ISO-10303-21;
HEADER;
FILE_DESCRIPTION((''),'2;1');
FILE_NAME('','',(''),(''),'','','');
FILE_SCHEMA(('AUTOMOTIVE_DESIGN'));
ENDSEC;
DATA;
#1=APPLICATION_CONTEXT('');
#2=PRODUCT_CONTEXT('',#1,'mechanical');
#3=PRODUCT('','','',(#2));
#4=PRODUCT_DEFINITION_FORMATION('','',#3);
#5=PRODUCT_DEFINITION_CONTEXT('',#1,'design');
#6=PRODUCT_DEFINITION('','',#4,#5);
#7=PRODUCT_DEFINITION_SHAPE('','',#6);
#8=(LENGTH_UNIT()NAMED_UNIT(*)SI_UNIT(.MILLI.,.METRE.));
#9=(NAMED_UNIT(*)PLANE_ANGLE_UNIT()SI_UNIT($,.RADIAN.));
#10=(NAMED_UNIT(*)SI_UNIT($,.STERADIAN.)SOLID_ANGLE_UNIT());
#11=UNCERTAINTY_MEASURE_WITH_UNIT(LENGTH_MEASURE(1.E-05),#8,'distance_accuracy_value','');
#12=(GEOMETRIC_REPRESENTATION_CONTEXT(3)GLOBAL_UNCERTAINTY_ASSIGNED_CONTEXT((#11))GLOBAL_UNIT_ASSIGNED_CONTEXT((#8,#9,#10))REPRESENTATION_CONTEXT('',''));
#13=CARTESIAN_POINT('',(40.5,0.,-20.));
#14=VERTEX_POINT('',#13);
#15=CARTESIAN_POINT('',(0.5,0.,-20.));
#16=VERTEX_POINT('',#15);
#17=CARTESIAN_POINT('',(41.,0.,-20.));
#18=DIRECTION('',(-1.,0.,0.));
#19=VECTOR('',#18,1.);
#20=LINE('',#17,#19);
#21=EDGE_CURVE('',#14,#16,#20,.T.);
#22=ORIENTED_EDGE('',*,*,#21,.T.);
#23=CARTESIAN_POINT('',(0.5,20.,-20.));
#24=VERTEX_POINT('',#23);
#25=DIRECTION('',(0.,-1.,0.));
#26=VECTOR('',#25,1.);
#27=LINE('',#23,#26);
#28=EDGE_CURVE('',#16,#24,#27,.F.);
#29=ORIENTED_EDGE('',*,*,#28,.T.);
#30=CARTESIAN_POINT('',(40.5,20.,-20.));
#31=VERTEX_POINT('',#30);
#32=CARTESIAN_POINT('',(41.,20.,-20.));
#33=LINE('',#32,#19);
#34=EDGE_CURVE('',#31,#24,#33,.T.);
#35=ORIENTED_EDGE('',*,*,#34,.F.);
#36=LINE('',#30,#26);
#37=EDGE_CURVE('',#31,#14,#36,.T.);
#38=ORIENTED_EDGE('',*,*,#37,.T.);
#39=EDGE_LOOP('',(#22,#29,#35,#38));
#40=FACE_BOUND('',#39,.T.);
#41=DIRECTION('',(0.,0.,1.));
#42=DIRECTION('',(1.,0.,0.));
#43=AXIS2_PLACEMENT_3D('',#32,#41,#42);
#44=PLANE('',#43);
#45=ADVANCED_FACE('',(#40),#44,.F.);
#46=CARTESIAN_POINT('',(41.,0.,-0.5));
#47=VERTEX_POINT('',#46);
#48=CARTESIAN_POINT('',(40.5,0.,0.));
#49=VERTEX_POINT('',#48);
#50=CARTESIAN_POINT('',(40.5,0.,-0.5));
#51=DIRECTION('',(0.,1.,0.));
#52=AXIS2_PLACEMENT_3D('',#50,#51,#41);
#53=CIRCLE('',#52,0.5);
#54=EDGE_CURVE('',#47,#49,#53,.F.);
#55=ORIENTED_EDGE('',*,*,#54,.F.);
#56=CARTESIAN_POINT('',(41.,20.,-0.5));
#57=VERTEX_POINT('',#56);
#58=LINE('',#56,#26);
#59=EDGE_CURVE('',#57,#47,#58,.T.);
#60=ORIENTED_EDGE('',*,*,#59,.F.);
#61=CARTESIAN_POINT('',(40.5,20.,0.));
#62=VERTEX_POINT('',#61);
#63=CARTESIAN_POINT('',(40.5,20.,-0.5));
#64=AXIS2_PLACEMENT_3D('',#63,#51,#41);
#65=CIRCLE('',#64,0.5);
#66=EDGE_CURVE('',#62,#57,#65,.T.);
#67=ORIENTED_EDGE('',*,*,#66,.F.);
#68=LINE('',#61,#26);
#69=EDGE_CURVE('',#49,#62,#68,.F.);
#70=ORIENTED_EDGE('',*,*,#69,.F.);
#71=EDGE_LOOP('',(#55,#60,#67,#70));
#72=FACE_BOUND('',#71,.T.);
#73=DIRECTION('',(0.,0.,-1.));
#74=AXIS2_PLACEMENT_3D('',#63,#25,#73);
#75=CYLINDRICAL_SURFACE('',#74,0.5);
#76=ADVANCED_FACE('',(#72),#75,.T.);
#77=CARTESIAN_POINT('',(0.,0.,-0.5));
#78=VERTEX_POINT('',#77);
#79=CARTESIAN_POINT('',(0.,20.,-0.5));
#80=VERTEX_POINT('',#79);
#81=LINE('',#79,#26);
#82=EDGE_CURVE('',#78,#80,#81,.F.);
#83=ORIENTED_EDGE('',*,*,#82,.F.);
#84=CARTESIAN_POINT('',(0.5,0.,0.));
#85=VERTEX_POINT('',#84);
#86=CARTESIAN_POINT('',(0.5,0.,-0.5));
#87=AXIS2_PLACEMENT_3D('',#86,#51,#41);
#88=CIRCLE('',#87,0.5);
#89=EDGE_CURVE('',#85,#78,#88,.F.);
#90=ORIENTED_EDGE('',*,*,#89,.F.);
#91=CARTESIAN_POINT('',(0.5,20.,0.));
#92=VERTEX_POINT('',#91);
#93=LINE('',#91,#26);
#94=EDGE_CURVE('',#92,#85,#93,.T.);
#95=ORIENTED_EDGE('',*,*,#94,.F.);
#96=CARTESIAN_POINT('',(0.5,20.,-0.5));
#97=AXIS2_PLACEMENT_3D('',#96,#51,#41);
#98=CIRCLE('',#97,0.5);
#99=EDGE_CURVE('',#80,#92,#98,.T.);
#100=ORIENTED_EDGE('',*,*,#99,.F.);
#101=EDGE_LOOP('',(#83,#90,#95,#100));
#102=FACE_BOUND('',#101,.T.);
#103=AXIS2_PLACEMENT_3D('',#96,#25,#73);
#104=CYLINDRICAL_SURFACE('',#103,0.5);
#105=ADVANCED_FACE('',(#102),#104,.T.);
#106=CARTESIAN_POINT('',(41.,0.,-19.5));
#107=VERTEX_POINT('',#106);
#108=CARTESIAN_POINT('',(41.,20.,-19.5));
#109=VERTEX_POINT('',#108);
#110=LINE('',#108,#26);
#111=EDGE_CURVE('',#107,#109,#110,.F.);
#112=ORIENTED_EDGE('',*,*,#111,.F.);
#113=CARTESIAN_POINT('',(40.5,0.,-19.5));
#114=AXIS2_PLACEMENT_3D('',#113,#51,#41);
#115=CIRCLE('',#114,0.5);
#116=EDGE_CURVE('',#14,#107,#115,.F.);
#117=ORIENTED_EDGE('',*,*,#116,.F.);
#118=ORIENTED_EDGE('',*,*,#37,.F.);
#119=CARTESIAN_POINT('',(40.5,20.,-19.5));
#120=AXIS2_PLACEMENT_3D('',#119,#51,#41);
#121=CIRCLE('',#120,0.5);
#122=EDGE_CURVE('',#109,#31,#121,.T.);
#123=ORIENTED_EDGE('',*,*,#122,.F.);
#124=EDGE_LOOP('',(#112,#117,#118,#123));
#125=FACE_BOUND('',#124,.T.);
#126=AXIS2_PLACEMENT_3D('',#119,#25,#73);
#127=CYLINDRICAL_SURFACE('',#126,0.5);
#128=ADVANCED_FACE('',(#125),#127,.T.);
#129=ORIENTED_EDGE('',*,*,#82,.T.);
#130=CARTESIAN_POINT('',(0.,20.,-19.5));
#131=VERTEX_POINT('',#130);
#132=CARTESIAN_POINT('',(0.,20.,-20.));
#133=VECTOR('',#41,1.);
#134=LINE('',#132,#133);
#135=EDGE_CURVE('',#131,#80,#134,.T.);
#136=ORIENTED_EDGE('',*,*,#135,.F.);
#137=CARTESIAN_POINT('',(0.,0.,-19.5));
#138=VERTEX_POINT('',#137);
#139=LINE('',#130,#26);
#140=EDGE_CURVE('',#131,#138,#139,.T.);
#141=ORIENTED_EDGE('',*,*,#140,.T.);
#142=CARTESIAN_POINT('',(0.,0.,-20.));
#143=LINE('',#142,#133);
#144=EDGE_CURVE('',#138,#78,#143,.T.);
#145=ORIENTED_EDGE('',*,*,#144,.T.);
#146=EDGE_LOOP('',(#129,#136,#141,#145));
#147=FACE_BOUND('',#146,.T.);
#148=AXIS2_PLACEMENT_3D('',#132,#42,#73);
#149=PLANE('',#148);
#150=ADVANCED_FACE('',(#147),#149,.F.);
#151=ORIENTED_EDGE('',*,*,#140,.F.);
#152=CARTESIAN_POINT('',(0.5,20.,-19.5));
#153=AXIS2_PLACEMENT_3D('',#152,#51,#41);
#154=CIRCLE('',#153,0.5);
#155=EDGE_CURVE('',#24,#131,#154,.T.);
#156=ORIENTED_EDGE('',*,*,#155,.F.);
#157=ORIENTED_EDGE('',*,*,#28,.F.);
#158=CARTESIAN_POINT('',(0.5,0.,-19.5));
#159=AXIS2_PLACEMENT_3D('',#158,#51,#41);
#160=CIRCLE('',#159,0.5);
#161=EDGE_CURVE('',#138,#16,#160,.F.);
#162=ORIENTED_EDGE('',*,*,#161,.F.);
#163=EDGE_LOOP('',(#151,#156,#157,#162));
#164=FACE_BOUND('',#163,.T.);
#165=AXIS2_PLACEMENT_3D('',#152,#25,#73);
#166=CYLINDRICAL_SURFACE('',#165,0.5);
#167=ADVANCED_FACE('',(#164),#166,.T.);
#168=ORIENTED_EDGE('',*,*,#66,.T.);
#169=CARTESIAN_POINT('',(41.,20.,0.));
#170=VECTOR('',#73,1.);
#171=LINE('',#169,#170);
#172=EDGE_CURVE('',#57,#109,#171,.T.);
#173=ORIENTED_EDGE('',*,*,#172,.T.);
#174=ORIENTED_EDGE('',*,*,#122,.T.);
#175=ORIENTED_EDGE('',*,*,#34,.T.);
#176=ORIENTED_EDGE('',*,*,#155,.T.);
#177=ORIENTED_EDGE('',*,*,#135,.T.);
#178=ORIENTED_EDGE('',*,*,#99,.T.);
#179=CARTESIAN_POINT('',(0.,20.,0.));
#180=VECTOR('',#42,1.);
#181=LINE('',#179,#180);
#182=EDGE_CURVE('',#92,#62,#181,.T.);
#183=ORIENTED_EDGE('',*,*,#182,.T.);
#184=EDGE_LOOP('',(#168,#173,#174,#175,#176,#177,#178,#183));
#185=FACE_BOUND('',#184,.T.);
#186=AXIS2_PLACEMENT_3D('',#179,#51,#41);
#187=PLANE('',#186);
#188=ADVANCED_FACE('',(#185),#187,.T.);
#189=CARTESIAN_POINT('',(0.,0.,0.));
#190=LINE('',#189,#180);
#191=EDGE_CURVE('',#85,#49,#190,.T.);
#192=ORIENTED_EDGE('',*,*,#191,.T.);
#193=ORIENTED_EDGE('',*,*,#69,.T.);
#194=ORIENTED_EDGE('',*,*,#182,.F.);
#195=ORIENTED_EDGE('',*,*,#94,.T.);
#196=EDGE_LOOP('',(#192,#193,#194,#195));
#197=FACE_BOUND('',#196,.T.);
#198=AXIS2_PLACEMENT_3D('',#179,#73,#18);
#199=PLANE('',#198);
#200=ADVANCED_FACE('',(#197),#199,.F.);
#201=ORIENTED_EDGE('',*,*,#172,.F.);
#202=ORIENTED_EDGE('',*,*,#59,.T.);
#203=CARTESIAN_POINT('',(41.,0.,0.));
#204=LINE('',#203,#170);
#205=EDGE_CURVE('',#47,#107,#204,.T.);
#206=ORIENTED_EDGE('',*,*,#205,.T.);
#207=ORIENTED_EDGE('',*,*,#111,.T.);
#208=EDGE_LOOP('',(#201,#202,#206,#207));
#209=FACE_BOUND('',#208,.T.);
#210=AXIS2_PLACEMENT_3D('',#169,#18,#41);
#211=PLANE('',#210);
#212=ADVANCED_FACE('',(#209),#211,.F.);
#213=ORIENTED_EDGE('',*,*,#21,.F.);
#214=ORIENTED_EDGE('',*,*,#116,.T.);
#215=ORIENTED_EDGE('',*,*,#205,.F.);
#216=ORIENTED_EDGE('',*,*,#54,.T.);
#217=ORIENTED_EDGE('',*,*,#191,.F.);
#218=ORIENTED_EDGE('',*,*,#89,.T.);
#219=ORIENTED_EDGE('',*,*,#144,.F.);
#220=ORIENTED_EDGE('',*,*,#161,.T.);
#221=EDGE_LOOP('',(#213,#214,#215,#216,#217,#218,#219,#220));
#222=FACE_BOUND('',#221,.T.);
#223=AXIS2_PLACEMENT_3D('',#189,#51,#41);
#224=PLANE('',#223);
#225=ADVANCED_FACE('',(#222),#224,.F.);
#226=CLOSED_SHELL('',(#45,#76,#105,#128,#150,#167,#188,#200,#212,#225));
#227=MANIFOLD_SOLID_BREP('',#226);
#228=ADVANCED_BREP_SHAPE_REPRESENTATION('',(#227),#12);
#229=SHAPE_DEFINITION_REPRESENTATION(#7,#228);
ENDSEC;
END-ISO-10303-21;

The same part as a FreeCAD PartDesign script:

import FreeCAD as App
import Part
import Sketcher

V = App.Vector


def edges_at(feature, points):
    """Names of the edges that pass closest to the given points."""
    edges = feature.Shape.Edges
    near = lambda p: min(range(len(edges)), key=lambda i: edges[i].distToShape(Part.Vertex(*p))[0])
    return sorted({f"Edge{near(p) + 1}" for p in points})

doc = App.newDocument("Part")
body = doc.addObject("PartDesign::Body", "Body")

# Sketch on XZ plane
sketch1 = doc.addObject("Sketcher::SketchObject", "Sketch")
body.addObject(sketch1)
sketch1.AttachmentSupport = (doc.XZ_Plane, [""])
sketch1.MapMode = "FlatFace"
sketch1.addGeometry([
    Part.LineSegment(V(0, -20, 0), V(0, 0, 0)),
    Part.LineSegment(V(0, 0, 0), V(41, 0, 0)),
    Part.LineSegment(V(41, 0, 0), V(41, -20, 0)),
    Part.LineSegment(V(41, -20, 0), V(0, -20, 0)),
], False)
sketch1.addConstraint([
    Sketcher.Constraint("Coincident", 0, 2, 1, 1),
    Sketcher.Constraint("Coincident", 1, 2, 2, 1),
    Sketcher.Constraint("Coincident", 2, 2, 3, 1),
    Sketcher.Constraint("Coincident", 3, 2, 0, 1),
    Sketcher.Constraint("Vertical", 0),
    Sketcher.Constraint("Horizontal", 1),
    Sketcher.Constraint("Vertical", 2),
    Sketcher.Constraint("Horizontal", 3),
    Sketcher.Constraint("Coincident", 0, 2, -1, 1),
    Sketcher.Constraint("DistanceX", 1, 1, 1, 2, 41.0),
    Sketcher.Constraint("DistanceY", 0, 1, 0, 2, 20.0),
])
pad1 = doc.addObject("PartDesign::Pad", "Pad")
body.addObject(pad1)
pad1.Profile = sketch1
pad1.Length = 20
pad1.Reversed = True
doc.recompute()

fillet = doc.addObject("PartDesign::Fillet", "Fillet")
body.addObject(fillet)
fillet.Base = (pad1, edges_at(pad1, [
    (0, 10, -20),
    (41, 10, -20),
    (41, 10, 0),
    (0, 10, 0),
]))
fillet.Radius = 0.5

doc.recompute()
